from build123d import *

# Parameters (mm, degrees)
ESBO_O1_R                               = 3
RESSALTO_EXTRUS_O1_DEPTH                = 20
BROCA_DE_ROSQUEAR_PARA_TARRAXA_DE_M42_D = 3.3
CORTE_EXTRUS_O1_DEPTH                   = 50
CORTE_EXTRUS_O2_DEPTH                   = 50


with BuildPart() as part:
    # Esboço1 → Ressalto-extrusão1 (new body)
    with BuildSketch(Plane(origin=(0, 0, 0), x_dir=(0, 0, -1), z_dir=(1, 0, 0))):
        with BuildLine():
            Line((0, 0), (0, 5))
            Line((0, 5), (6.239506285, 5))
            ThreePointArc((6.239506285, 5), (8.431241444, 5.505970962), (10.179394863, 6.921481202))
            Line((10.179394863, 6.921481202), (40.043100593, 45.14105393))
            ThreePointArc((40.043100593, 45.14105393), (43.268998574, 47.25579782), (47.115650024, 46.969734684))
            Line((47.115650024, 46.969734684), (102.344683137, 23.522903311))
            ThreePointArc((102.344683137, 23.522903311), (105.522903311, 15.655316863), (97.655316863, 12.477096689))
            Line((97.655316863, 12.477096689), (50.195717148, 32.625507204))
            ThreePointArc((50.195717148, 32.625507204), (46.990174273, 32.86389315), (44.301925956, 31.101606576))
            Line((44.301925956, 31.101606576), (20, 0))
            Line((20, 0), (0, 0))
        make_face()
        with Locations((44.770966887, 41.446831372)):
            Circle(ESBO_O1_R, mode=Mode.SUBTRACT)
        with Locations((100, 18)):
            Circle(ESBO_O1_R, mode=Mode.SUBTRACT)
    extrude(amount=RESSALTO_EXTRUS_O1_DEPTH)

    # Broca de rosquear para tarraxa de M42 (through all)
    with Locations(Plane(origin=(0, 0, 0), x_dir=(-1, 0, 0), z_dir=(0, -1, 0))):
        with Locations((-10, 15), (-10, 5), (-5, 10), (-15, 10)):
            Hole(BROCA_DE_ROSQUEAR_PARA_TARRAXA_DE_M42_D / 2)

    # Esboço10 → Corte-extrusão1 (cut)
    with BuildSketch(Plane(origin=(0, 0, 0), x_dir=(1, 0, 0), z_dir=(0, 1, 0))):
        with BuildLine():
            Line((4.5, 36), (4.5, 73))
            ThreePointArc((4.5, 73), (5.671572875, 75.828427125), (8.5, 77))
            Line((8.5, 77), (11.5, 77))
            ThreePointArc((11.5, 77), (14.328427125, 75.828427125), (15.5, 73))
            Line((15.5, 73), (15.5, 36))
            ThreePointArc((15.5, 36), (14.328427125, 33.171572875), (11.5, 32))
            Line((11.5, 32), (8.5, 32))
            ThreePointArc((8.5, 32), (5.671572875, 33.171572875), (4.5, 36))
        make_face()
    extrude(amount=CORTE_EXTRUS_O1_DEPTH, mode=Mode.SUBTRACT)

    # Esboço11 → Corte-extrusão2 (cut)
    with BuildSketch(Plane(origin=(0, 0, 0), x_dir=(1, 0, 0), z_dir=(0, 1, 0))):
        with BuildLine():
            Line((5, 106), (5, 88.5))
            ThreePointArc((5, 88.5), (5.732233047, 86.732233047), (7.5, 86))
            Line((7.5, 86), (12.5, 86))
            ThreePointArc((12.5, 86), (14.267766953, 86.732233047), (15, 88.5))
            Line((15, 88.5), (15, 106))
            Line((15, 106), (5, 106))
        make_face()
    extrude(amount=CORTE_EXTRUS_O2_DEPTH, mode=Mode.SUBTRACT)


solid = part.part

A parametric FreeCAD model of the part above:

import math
import FreeCAD as App
import Part
import Sketcher

V = App.Vector

doc = App.newDocument("Part")
body = doc.addObject("PartDesign::Body", "Body")

# Sketch on YZ plane
sketch1 = body.newObject("Sketcher::SketchObject", "Sketch")
sketch1.AttachmentSupport = (doc.getObject("YZ_Plane"), [""])
sketch1.MapMode = "FlatFace"
sketch1.addGeometry(Part.LineSegment(V(5, 0, 0), V(0, 0, 0)), False)
sketch1.addGeometry(Part.LineSegment(V(0, 0, 0), V(0, -20, 0)), False)
sketch1.addGeometry(Part.LineSegment(V(0, -20, 0), V(31.1, -44.3, 0)), False)
sketch1.addGeometry(Part.ArcOfCircle(Part.Circle(V(28, -48.2, 0), V(0, 0, 1), 5), math.radians(-23), math.radians(52)), False)
sketch1.addGeometry(Part.LineSegment(V(32.6, -50.2, 0), V(12.5, -97.7, 0)), False)
sketch1.addGeometry(Part.ArcOfCircle(Part.Circle(V(18, -100, 0), V(0, 0, 1), 6), math.radians(157), math.radians(337)), False)
sketch1.addGeometry(Part.LineSegment(V(23.5, -102.3, 0), V(47, -47.1, 0)), False)
sketch1.addGeometry(Part.ArcOfCircle(Part.Circle(V(41.4, -44.8, 0), V(0, 0, 1), 6), math.radians(-23), math.radians(52)), False)
sketch1.addGeometry(Part.LineSegment(V(45.1, -40, 0), V(6.9, -10.2, 0)), False)
sketch1.addGeometry(Part.ArcOfCircle(Part.Circle(V(10, -6.2, 0), V(0, 0, 1), 5), math.radians(180), math.radians(232)), False)
sketch1.addGeometry(Part.LineSegment(V(5, -6.2, 0), V(5, 0, 0)), False)
sketch1.addGeometry(Part.Circle(V(18, -100, 0), V(0, 0, 1), 3), False)
sketch1.addGeometry(Part.Circle(V(41.4, -44.8, 0), V(0, 0, 1), 3), False)
sketch1.addConstraint(Sketcher.Constraint("Coincident", 0, 2, 1, 1))
sketch1.addConstraint(Sketcher.Constraint("Coincident", 1, 2, 2, 1))
sketch1.addConstraint(Sketcher.Constraint("Tangent", 2, 2, 3, 2))
sketch1.addConstraint(Sketcher.Constraint("Tangent", 3, 1, 4, 1))
sketch1.addConstraint(Sketcher.Constraint("Tangent", 4, 2, 5, 1))
sketch1.addConstraint(Sketcher.Constraint("Tangent", 5, 2, 6, 1))
sketch1.addConstraint(Sketcher.Constraint("Tangent", 6, 2, 7, 1))
sketch1.addConstraint(Sketcher.Constraint("Tangent", 7, 2, 8, 1))
sketch1.addConstraint(Sketcher.Constraint("Tangent", 8, 2, 9, 2))
sketch1.addConstraint(Sketcher.Constraint("Tangent", 9, 1, 10, 1))
sketch1.addConstraint(Sketcher.Constraint("Coincident", 10, 2, 0, 1))
sketch1.addConstraint(Sketcher.Constraint("Horizontal", 0))
sketch1.addConstraint(Sketcher.Constraint("Vertical", 1))
sketch1.addConstraint(Sketcher.Constraint("Vertical", 10))
sketch1.addConstraint(Sketcher.Constraint("Coincident", 0, 2, -1, 1))
sketch1.addConstraint(Sketcher.Constraint("Coincident", 11, 3, 5, 3))
sketch1.addConstraint(Sketcher.Constraint("Coincident", 12, 3, 7, 3))
sketch1.addConstraint(Sketcher.Constraint("Equal", 5, 7))
sketch1.addConstraint(Sketcher.Constraint("Equal", 3, 9))
sketch1.addConstraint(Sketcher.Constraint("Equal", 11, 12))
sketch1.addConstraint(Sketcher.Constraint("Parallel", 4, 6))
sketch1.addConstraint(Sketcher.Constraint("Parallel", 2, 8))
sketch1.addConstraint(Sketcher.Constraint("Diameter", 11, 6.0))
sketch1.addConstraint(Sketcher.Constraint("Radius", 3, 5.0))
sketch1.addConstraint(Sketcher.Constraint("Radius", 5, 6.0))
sketch1.addConstraint(Sketcher.Constraint("DistanceX", 0, 2, 0, 1, 5.0))
sketch1.addConstraint(Sketcher.Constraint("DistanceY", 1, 2, 1, 1, 20.0))
sketch1.addConstraint(Sketcher.Constraint("Distance", 6, 60.0))
sketch1.addConstraint(Sketcher.Constraint("DistanceX", -1, 1, 5, 3, 18.0))
sketch1.addConstraint(Sketcher.Constraint("DistanceY", 5, 3, -1, 1, 100.0))
sketch1.addConstraint(Sketcher.Constraint("DistanceY", 7, 2, -1, 1, 40.043101))
sketch1.addConstraint(Sketcher.Constraint("DistanceX", 2, 2, 3, 1, 1.523901))
pad1 = body.newObject("PartDesign::Pad", "Pad")
pad1.Profile = sketch1
pad1.Length = 20

# Sketch on XZ plane
sketch2 = body.newObject("Sketcher::SketchObject", "Sketch001")
sketch2.AttachmentSupport = (doc.getObject("XZ_Plane"), [""])
sketch2.MapMode = "FlatFace"
sketch2.addGeometry(Part.Circle(V(10, -15, 0), V(0, 0, 1), 1.6), False)
sketch2.addGeometry(Part.Circle(V(10, -5, 0), V(0, 0, 1), 1.6), False)
sketch2.addGeometry(Part.Circle(V(5, -10, 0), V(0, 0, 1), 1.6), False)
sketch2.addGeometry(Part.Circle(V(15, -10, 0), V(0, 0, 1), 1.6), False)
sketch2.addConstraint(Sketcher.Constraint("Equal", 0, 1))
sketch2.addConstraint(Sketcher.Constraint("Equal", 1, 2))
sketch2.addConstraint(Sketcher.Constraint("Equal", 2, 3))
sketch2.addConstraint(Sketcher.Constraint("Horizontal", 2, 3, 3, 3))
sketch2.addConstraint(Sketcher.Constraint("Vertical", 0, 3, 1, 3))
sketch2.addConstraint(Sketcher.Constraint("Diameter", 0, 3.3))
sketch2.addConstraint(Sketcher.Constraint("DistanceX", -1, 1, 0, 3, 10.0))
sketch2.addConstraint(Sketcher.Constraint("DistanceY", 0, 3, -1, 1, 15.0))
sketch2.addConstraint(Sketcher.Constraint("DistanceY", 1, 3, -1, 1, 5.0))
sketch2.addConstraint(Sketcher.Constraint("DistanceX", -1, 1, 2, 3, 5.0))
sketch2.addConstraint(Sketcher.Constraint("DistanceY", 2, 3, -1, 1, 10.0))
sketch2.addConstraint(Sketcher.Constraint("DistanceX", -1, 1, 3, 3, 15.0))
doc.recompute()
hole = body.newObject("PartDesign::Hole", "Hole")
hole.Profile = sketch2
hole.ThreadType = "None"
hole.Diameter = 3.3
hole.DepthType = "ThroughAll"

# Sketch on XZ plane
sketch3 = body.newObject("Sketcher::SketchObject", "Sketch002")
sketch3.AttachmentSupport = (doc.getObject("XZ_Plane"), [""])
sketch3.MapMode = "FlatFace"
sketch3.addGeometry(Part.LineSegment(V(4.5, -73, 0), V(4.5, -36, 0)), False)
sketch3.addGeometry(Part.ArcOfCircle(Part.Circle(V(8.5, -36, 0), V(0, 0, 1), 4), math.radians(90), math.radians(180)), False)
sketch3.addGeometry(Part.LineSegment(V(8.5, -32, 0), V(11.5, -32, 0)), False)
sketch3.addGeometry(Part.ArcOfCircle(Part.Circle(V(11.5, -36, 0), V(0, 0, 1), 4), math.radians(0), math.radians(90)), False)
sketch3.addGeometry(Part.LineSegment(V(15.5, -36, 0), V(15.5, -73, 0)), False)
sketch3.addGeometry(Part.ArcOfCircle(Part.Circle(V(11.5, -73, 0), V(0, 0, 1), 4), math.radians(-90), math.radians(0)), False)
sketch3.addGeometry(Part.LineSegment(V(11.5, -77, 0), V(8.5, -77, 0)), False)
sketch3.addGeometry(Part.ArcOfCircle(Part.Circle(V(8.5, -73, 0), V(0, 0, 1), 4), math.radians(180), math.radians(270)), False)
sketch3.addConstraint(Sketcher.Constraint("Tangent", 0, 2, 1, 2))
sketch3.addConstraint(Sketcher.Constraint("Tangent", 1, 1, 2, 1))
sketch3.addConstraint(Sketcher.Constraint("Tangent", 2, 2, 3, 2))
sketch3.addConstraint(Sketcher.Constraint("Tangent", 3, 1, 4, 1))
sketch3.addConstraint(Sketcher.Constraint("Tangent", 4, 2, 5, 2))
sketch3.addConstraint(Sketcher.Constraint("Tangent", 5, 1, 6, 1))
sketch3.addConstraint(Sketcher.Constraint("Tangent", 6, 2, 7, 2))
sketch3.addConstraint(Sketcher.Constraint("Tangent", 7, 1, 0, 1))
sketch3.addConstraint(Sketcher.Constraint("Vertical", 0))
sketch3.addConstraint(Sketcher.Constraint("Horizontal", 2))
sketch3.addConstraint(Sketcher.Constraint("Vertical", 4))
sketch3.addConstraint(Sketcher.Constraint("Horizontal", 6))
sketch3.addConstraint(Sketcher.Constraint("Equal", 1, 3))
sketch3.addConstraint(Sketcher.Constraint("Equal", 3, 5))
sketch3.addConstraint(Sketcher.Constraint("Equal", 5, 7))
sketch3.addConstraint(Sketcher.Constraint("Radius", 1, 4.0))
sketch3.addConstraint(Sketcher.Constraint("DistanceX", 2, 1, 2, 2, 3.0))
sketch3.addConstraint(Sketcher.Constraint("DistanceY", 0, 1, 0, 2, 37.0))
sketch3.addConstraint(Sketcher.Constraint("DistanceY", 1, 3, -1, 1, 36.0))
sketch3.addConstraint(Sketcher.Constraint("DistanceX", -1, 1, 1, 3, 8.5))
pocket1 = body.newObject("PartDesign::Pocket", "Pocket")
pocket1.Profile = sketch3
pocket1.Length = 50

# Sketch on XZ plane
sketch4 = body.newObject("Sketcher::SketchObject", "Sketch003")
sketch4.AttachmentSupport = (doc.getObject("XZ_Plane"), [""])
sketch4.MapMode = "FlatFace"
sketch4.addGeometry(Part.LineSegment(V(5, -106, 0), V(5, -88.5, 0)), False)
sketch4.addGeometry(Part.ArcOfCircle(Part.Circle(V(7.5, -88.5, 0), V(0, 0, 1), 2.5), math.radians(90), math.radians(180)), False)
sketch4.addGeometry(Part.LineSegment(V(7.5, -86, 0), V(12.5, -86, 0)), False)
sketch4.addGeometry(Part.ArcOfCircle(Part.Circle(V(12.5, -88.5, 0), V(0, 0, 1), 2.5), math.radians(0), math.radians(90)), False)
sketch4.addGeometry(Part.LineSegment(V(15, -88.5, 0), V(15, -106, 0)), False)
sketch4.addGeometry(Part.LineSegment(V(15, -106, 0), V(5, -106, 0)), False)
sketch4.addConstraint(Sketcher.Constraint("Tangent", 0, 2, 1, 2))
sketch4.addConstraint(Sketcher.Constraint("Tangent", 1, 1, 2, 1))
sketch4.addConstraint(Sketcher.Constraint("Tangent", 2, 2, 3, 2))
sketch4.addConstraint(Sketcher.Constraint("Tangent", 3, 1, 4, 1))
sketch4.addConstraint(Sketcher.Constraint("Coincident", 4, 2, 5, 1))
sketch4.addConstraint(Sketcher.Constraint("Coincident", 5, 2, 0, 1))
sketch4.addConstraint(Sketcher.Constraint("Vertical", 0))
sketch4.addConstraint(Sketcher.Constraint("Horizontal", 2))
sketch4.addConstraint(Sketcher.Constraint("Vertical", 4))
sketch4.addConstraint(Sketcher.Constraint("Horizontal", 5))
sketch4.addConstraint(Sketcher.Constraint("Equal", 1, 3))
sketch4.addConstraint(Sketcher.Constraint("Radius", 1, 2.5))
sketch4.addConstraint(Sketcher.Constraint("DistanceX", 2, 1, 2, 2, 5.0))
sketch4.addConstraint(Sketcher.Constraint("DistanceY", 0, 1, 0, 2, 17.5))
sketch4.addConstraint(Sketcher.Constraint("DistanceX", -1, 1, 0, 2, 5.0))
sketch4.addConstraint(Sketcher.Constraint("DistanceY", 1, 1, -1, 1, 86.0))
pocket2 = body.newObject("PartDesign::Pocket", "Pocket001")
pocket2.Profile = sketch4
pocket2.Length = 50

doc.recompute()
